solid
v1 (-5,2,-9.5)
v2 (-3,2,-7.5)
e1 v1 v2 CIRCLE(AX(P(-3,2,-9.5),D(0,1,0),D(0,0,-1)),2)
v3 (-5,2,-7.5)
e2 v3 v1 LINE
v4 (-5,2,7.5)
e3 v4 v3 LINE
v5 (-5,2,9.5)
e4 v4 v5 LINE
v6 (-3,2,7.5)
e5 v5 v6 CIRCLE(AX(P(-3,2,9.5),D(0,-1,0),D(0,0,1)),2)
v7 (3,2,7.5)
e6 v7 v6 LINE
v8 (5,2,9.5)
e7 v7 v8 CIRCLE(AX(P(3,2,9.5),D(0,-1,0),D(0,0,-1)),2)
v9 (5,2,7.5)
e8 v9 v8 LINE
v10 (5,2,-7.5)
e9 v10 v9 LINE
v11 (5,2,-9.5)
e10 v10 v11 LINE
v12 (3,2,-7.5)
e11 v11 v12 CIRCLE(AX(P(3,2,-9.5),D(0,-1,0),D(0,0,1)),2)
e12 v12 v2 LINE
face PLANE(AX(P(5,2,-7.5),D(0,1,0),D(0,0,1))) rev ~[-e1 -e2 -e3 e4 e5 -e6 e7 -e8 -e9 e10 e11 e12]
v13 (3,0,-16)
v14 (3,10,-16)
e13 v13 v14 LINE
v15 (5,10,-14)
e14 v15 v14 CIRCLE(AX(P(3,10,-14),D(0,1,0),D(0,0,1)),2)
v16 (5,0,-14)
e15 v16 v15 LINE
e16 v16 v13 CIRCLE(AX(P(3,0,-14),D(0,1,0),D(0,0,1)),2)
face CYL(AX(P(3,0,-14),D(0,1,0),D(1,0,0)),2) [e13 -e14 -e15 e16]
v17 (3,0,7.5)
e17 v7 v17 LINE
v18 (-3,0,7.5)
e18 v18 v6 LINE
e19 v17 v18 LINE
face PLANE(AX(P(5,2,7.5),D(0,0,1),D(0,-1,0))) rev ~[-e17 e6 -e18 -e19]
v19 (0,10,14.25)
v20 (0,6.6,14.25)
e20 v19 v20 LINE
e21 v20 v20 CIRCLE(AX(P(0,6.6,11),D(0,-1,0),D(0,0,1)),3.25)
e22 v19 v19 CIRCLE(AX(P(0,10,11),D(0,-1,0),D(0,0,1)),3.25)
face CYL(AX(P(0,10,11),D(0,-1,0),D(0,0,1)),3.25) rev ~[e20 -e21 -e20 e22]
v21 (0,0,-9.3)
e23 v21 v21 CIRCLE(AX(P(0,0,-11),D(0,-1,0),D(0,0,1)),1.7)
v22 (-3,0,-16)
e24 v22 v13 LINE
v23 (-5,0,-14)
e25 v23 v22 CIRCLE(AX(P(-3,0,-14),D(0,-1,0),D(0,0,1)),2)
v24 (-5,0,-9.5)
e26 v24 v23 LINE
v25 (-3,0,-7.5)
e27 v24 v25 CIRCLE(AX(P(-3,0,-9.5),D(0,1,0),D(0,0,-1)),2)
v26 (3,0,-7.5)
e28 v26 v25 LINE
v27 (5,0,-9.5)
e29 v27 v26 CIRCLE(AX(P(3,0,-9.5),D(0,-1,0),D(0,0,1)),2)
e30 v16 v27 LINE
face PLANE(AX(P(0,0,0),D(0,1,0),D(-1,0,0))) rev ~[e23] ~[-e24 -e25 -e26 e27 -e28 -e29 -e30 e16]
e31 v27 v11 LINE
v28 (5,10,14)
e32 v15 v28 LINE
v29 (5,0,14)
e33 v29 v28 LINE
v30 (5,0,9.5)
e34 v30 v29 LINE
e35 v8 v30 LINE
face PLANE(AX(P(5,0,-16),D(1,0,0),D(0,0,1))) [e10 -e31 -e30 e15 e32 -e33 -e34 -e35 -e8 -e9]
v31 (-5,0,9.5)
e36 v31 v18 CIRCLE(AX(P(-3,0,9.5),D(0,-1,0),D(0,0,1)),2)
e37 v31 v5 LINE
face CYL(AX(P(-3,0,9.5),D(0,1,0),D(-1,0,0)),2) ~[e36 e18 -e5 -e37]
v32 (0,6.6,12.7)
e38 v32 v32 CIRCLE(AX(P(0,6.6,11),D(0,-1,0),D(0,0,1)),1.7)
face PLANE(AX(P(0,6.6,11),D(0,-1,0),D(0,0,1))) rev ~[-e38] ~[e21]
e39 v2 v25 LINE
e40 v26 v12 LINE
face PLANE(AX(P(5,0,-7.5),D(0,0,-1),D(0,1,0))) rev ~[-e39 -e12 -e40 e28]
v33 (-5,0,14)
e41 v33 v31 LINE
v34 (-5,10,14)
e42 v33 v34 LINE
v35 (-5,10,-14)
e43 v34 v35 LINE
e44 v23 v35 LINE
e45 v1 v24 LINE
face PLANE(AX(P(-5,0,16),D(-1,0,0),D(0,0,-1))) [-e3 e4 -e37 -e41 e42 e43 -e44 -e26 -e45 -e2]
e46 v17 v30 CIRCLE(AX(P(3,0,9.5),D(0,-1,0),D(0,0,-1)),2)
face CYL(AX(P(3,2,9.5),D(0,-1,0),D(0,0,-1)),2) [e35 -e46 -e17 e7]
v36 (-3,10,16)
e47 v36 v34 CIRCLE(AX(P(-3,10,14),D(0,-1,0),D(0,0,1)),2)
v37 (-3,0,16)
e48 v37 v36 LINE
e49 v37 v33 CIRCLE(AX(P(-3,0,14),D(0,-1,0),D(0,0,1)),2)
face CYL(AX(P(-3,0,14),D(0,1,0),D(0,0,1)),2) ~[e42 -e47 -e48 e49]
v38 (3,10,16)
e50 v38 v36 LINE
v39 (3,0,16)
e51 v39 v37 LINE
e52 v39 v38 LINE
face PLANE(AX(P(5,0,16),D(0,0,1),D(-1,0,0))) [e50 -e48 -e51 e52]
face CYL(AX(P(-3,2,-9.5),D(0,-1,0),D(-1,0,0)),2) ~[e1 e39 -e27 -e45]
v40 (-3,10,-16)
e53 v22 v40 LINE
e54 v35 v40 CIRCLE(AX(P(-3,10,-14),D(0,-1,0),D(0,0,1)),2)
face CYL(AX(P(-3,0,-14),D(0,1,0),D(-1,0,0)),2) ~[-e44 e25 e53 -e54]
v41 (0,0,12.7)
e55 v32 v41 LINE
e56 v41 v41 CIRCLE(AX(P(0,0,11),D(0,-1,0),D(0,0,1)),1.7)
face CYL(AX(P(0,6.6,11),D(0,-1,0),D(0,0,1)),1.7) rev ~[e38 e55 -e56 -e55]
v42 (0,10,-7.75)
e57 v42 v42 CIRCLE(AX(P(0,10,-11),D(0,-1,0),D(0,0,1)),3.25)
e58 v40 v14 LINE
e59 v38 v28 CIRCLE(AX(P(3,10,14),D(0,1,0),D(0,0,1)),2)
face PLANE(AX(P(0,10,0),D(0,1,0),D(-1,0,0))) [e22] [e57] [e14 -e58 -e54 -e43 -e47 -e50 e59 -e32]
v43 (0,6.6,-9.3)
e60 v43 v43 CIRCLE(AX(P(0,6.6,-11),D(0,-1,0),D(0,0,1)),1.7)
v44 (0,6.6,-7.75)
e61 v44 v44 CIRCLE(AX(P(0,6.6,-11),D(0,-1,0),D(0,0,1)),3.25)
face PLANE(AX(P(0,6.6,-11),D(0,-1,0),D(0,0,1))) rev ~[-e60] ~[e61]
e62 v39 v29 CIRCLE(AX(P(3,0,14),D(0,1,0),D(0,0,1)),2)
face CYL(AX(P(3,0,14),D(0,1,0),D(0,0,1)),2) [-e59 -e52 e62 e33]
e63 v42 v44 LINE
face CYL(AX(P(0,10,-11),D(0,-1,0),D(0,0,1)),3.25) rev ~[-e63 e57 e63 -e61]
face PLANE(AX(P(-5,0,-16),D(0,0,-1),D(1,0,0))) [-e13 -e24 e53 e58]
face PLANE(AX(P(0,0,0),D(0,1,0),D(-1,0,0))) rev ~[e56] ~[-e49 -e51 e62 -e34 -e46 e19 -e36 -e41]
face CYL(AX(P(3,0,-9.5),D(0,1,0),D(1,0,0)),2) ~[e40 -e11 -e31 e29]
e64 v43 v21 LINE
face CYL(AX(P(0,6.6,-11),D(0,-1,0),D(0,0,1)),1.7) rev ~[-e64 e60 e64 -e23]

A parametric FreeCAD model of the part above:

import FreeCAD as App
import Part
import Sketcher

V = App.Vector


def edges_at(feature, points):
    """Names of the edges that pass closest to the given points."""
    edges = feature.Shape.Edges
    near = lambda p: min(range(len(edges)), key=lambda i: edges[i].distToShape(Part.Vertex(*p))[0])
    return sorted({f"Edge{near(p) + 1}" for p in points})

doc = App.newDocument("Part")
body = doc.addObject("PartDesign::Body", "Body")

sketch1 = doc.addObject("Sketcher::SketchObject", "Sketch")
body.addObject(sketch1)
sketch1.AttachmentSupport = (doc.XZ_Plane, [""])
sketch1.MapMode = "FlatFace"
sketch1.addGeometry([
    Part.LineSegment(V(-5, 16, 0), V(5, 16, 0)),
    Part.LineSegment(V(5, 16, 0), V(5, -16, 0)),
    Part.LineSegment(V(5, -16, 0), V(-5, -16, 0)),
    Part.LineSegment(V(-5, -16, 0), V(-5, 16, 0)),
], False)
sketch1.addConstraint([
    Sketcher.Constraint("Coincident", 0, 2, 1, 1),
    Sketcher.Constraint("Coincident", 1, 2, 2, 1),
    Sketcher.Constraint("Coincident", 2, 2, 3, 1),
    Sketcher.Constraint("Coincident", 3, 2, 0, 1),
    Sketcher.Constraint("Horizontal", 0),
    Sketcher.Constraint("Vertical", 1),
    Sketcher.Constraint("Horizontal", 2),
    Sketcher.Constraint("Vertical", 3),
    Sketcher.Constraint("Symmetric", 0, 2, 2, 2, -1, 1),
    Sketcher.Constraint("DistanceX", 0, 1, 0, 2, 10.0),
    Sketcher.Constraint("DistanceY", 1, 2, 1, 1, 32.0),
])
pad1 = doc.addObject("PartDesign::Pad", "Pad")
body.addObject(pad1)
pad1.Profile = sketch1
pad1.Length = 10
pad1.Reversed = True

sketch2 = doc.addObject("Sketcher::SketchObject", "Sketch001")
body.addObject(sketch2)
sketch2.AttachmentSupport = (doc.XZ_Plane, [""])
sketch2.MapMode = "FlatFace"
sketch2.AttachmentOffset = App.Placement(V(0, 0, -10), App.Rotation())
sketch2.addGeometry([
    Part.Circle(V(0, 11, 0), V(0, 0, 1), 1.7),
    Part.Circle(V(0, -11, 0), V(0, 0, 1), 1.7),
], False)
sketch2.addConstraint([
    Sketcher.Constraint("Equal", 0, 1),
    Sketcher.Constraint("Symmetric", 0, 3, 1, 3, -1, 1),
    Sketcher.Constraint("PointOnObject", 0, 3, -2),
    Sketcher.Constraint("Diameter", 0, 3.4),
    Sketcher.Constraint("DistanceY", -1, 1, 0, 3, 11.0),
])
doc.recompute()
hole = doc.addObject("PartDesign::Hole", "Hole")
body.addObject(hole)
hole.Profile = sketch2
hole.ThreadType = "None"
hole.Diameter = 3.4
hole.DepthType = "Dimension"
hole.Depth = 10
hole.DrillPoint = "Flat"
hole.HoleCutType = "Counterbore"
hole.HoleCutDiameter = 6.5
hole.HoleCutDepth = 3.4
hole.Reversed = True
doc.recompute()

fillet = doc.addObject("PartDesign::Fillet", "Fillet")
body.addObject(fillet)
fillet.Base = (hole, edges_at(hole, [
    (5, 5, 16),
    (-5, 5, 16),
    (5, 5, -16),
    (-5, 5, -16),
]))
fillet.Radius = 2

sketch3 = doc.addObject("Sketcher::SketchObject", "Sketch002")
body.addObject(sketch3)
sketch3.AttachmentSupport = (doc.YZ_Plane, [""])
sketch3.MapMode = "FlatFace"
sketch3.AttachmentOffset = App.Placement(V(0, 0, 5), App.Rotation())
sketch3.addGeometry([
    Part.LineSegment(V(0, -7.5, 0), V(2, -7.5, 0)),
    Part.LineSegment(V(2, -7.5, 0), V(2, 7.5, 0)),
    Part.LineSegment(V(2, 7.5, 0), V(0, 7.5, 0)),
    Part.LineSegment(V(0, 7.5, 0), V(0, -7.5, 0)),
], False)
sketch3.addConstraint([
    Sketcher.Constraint("Coincident", 0, 2, 1, 1),
    Sketcher.Constraint("Coincident", 1, 2, 2, 1),
    Sketcher.Constraint("Coincident", 2, 2, 3, 1),
    Sketcher.Constraint("Coincident", 3, 2, 0, 1),
    Sketcher.Constraint("Horizontal", 0),
    Sketcher.Constraint("Vertical", 1),
    Sketcher.Constraint("Horizontal", 2),
    Sketcher.Constraint("Vertical", 3),
    Sketcher.Constraint("Symmetric", 2, 2, 3, 2, -1, 1),
    Sketcher.Constraint("DistanceX", 0, 1, 0, 2, 2.0),
    Sketcher.Constraint("DistanceY", 1, 1, 1, 2, 15.0),
])
pocket1 = doc.addObject("PartDesign::Pocket", "Pocket")
body.addObject(pocket1)
pocket1.Profile = sketch3
pocket1.Type = "ThroughAll"
doc.recompute()

fillet2 = doc.addObject("PartDesign::Fillet", "Fillet001")
body.addObject(fillet2)
fillet2.Base = (pocket1, edges_at(pocket1, [
    (5, 1, 7.5),
    (-5, 1, 7.5),
    (5, 1, -7.5),
    (-5, 1, -7.5),
]))
fillet2.Radius = 2

doc.recompute()
